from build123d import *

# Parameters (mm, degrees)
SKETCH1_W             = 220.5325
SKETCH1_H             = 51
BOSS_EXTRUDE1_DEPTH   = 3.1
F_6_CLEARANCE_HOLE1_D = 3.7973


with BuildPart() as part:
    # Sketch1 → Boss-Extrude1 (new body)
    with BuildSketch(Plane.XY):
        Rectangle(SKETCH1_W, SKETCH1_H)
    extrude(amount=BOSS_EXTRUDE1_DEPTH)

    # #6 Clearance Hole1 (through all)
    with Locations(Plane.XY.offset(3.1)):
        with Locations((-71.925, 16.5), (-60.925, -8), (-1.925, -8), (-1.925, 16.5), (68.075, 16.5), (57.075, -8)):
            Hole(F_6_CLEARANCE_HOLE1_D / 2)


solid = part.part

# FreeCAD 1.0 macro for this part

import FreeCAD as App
import Part
import Sketcher
from FreeCAD import Vector
Q = App.Units.Quantity

doc = App.newDocument("Part")
body = doc.addObject("PartDesign::Body", "Body")

sketch1 = body.newObject("Sketcher::SketchObject", "Sketch")
sketch1.AttachmentSupport = (doc.getObject("XY_Plane"), [""])
sketch1.MapMode = "FlatFace"
sketch1.addGeometry(Part.LineSegment(Vector(-110, 26, 0), Vector(-110, -26, 0)), False)
sketch1.addGeometry(Part.LineSegment(Vector(-110, -26, 0), Vector(110, -26, 0)), False)
sketch1.addGeometry(Part.LineSegment(Vector(110, -26, 0), Vector(110, 26, 0)), False)
sketch1.addGeometry(Part.LineSegment(Vector(110, 26, 0), Vector(-110, 26, 0)), False)
sketch1.addConstraint(Sketcher.Constraint("Coincident", 0, 2, 1, 1))
sketch1.addConstraint(Sketcher.Constraint("Coincident", 1, 2, 2, 1))
sketch1.addConstraint(Sketcher.Constraint("Coincident", 2, 2, 3, 1))
sketch1.addConstraint(Sketcher.Constraint("Coincident", 3, 2, 0, 1))
sketch1.addConstraint(Sketcher.Constraint("Vertical", 0))
sketch1.addConstraint(Sketcher.Constraint("Horizontal", 1))
sketch1.addConstraint(Sketcher.Constraint("Vertical", 2))
sketch1.addConstraint(Sketcher.Constraint("Horizontal", 3))
sketch1.addConstraint(Sketcher.Constraint("Symmetric", 0, 2, 2, 2, -1, 1))
sketch1.addConstraint(Sketcher.Constraint("DistanceY", 0, 2, 0, 1, Q("51 mm")))
sketch1.addConstraint(Sketcher.Constraint("DistanceX", 1, 1, 1, 2, Q("220.5325 mm")))
pad1 = body.newObject("PartDesign::Pad", "Pad")
pad1.Profile = sketch1
pad1.Length = 3.1

sketch2 = body.newObject("Sketcher::SketchObject", "Sketch001")
sketch2.AttachmentSupport = (doc.getObject("XY_Plane"), [""])
sketch2.MapMode = "FlatFace"
sketch2.AttachmentOffset = App.Placement(Vector(0, 0, 3.1), App.Rotation())
sketch2.addGeometry(Part.Circle(Vector(-71.9, 16.5, 0), Vector(0, 0, 1), 1.9), False)
sketch2.addGeometry(Part.Circle(Vector(-60.9, -8, 0), Vector(0, 0, 1), 1.9), False)
sketch2.addGeometry(Part.Circle(Vector(-1.9, -8, 0), Vector(0, 0, 1), 1.9), False)
sketch2.addGeometry(Part.Circle(Vector(-1.9, 16.5, 0), Vector(0, 0, 1), 1.9), False)
sketch2.addGeometry(Part.Circle(Vector(68.1, 16.5, 0), Vector(0, 0, 1), 1.9), False)
sketch2.addGeometry(Part.Circle(Vector(57.1, -8, 0), Vector(0, 0, 1), 1.9), False)
sketch2.addConstraint(Sketcher.Constraint("Equal", 0, 1))
sketch2.addConstraint(Sketcher.Constraint("Equal", 1, 2))
sketch2.addConstraint(Sketcher.Constraint("Equal", 2, 3))
sketch2.addConstraint(Sketcher.Constraint("Equal", 3, 4))
sketch2.addConstraint(Sketcher.Constraint("Equal", 4, 5))
sketch2.addConstraint(Sketcher.Constraint("Horizontal", 1, 3, 2, 3))
sketch2.addConstraint(Sketcher.Constraint("Horizontal", 0, 3, 3, 3))
sketch2.addConstraint(Sketcher.Constraint("Horizontal", 3, 3, 4, 3))
sketch2.addConstraint(Sketcher.Constraint("Horizontal", 2, 3, 5, 3))
sketch2.addConstraint(Sketcher.Constraint("Vertical", 2, 3, 3, 3))
sketch2.addConstraint(Sketcher.Constraint("DistanceY", 1, 3, -1, 1, Q("8 mm")))
sketch2.addConstraint(Sketcher.Constraint("DistanceX", 0, 3, 1, 3, Q("11 mm")))
sketch2.addConstraint(Sketcher.Constraint("DistanceX", 1, 3, 2, 3, Q("59 mm")))
sketch2.addConstraint(Sketcher.Constraint("DistanceX", 3, 3, 4, 3, Q("70 mm")))
sketch2.addConstraint(Sketcher.Constraint("DistanceX", 5, 3, 4, 3, Q("11 mm")))
sketch2.addConstraint(Sketcher.Constraint("Diameter", 0, Q("3.7973 mm")))
sketch2.addConstraint(Sketcher.Constraint("DistanceY", -1, 1, 0, 3, Q("16.5 mm")))
sketch2.addConstraint(Sketcher.Constraint("DistanceX", 0, 3, -1, 1, Q("71.925 mm")))
doc.recompute()
hole = body.newObject("PartDesign::Hole", "Hole")
hole.Profile = sketch2
hole.ThreadType = "None"
hole.Diameter = 3.7973
hole.DepthType = "ThroughAll"

doc.recompute()
